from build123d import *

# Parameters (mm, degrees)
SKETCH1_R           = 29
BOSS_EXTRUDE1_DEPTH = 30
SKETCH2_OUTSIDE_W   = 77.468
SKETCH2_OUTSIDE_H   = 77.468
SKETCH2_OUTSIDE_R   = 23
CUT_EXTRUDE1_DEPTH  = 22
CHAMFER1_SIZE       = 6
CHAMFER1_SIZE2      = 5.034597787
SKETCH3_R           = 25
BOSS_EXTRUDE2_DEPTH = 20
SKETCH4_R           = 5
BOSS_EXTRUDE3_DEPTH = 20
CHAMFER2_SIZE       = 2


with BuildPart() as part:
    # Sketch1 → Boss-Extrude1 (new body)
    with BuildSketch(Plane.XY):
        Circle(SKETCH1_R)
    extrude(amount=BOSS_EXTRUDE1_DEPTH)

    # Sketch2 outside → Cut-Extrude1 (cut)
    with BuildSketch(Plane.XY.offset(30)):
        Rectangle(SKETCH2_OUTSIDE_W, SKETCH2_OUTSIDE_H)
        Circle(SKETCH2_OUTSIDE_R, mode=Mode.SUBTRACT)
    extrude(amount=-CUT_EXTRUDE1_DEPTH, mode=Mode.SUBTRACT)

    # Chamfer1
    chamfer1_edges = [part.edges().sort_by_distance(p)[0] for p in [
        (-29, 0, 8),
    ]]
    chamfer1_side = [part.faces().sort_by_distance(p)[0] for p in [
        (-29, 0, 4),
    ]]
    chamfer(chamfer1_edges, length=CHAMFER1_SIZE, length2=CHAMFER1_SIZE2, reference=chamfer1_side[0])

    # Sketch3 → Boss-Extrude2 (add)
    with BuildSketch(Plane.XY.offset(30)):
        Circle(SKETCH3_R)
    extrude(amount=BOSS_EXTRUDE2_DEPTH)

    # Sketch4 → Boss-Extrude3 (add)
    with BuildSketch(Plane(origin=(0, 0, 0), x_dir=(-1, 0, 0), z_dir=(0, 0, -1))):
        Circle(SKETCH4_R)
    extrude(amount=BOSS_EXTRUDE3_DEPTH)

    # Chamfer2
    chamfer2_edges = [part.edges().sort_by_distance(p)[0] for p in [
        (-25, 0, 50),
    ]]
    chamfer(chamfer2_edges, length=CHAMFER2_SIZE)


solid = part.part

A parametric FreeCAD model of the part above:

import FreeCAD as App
import Part
import Sketcher
Q = App.Units.Quantity


def edges_at(feature, points):
    """Names of the edges that pass closest to the given points."""
    edges = feature.Shape.Edges
    near = lambda p: min(range(len(edges)), key=lambda i: edges[i].distToShape(Part.Vertex(*p))[0])
    return sorted({f"Edge{near(p) + 1}" for p in points})

doc = App.newDocument("Part")
body = doc.addObject("PartDesign::Body", "Body")

# Sketch on XY plane
sketch1 = body.newObject("Sketcher::SketchObject", "Sketch")
sketch1.AttachmentSupport = (doc.getObject("XY_Plane"), [""])
sketch1.MapMode = "FlatFace"
sketch1.addGeometry(Part.Circle(App.Vector(0, 0, 0), App.Vector(0, 0, 1), 29), False)
sketch1.addConstraint([
    Sketcher.Constraint("Coincident", 0, 3, -1, 1),
    Sketcher.Constraint("Diameter", 0, Q("58 mm")),
])
pad1 = body.newObject("PartDesign::Pad", "Pad")
pad1.Profile = sketch1
pad1.Length = 30

# Sketch on XY plane
sketch2 = body.newObject("Sketcher::SketchObject", "Sketch001")
sketch2.AttachmentSupport = (doc.getObject("XY_Plane"), [""])
sketch2.MapMode = "FlatFace"
sketch2.AttachmentOffset = App.Placement(App.Vector(0, 0, 30), App.Rotation())
sketch2.addGeometry([
    Part.LineSegment(App.Vector(-39, 39, 0), App.Vector(-39, -39, 0)),  # 0
    Part.LineSegment(App.Vector(-39, -39, 0), App.Vector(39, -39, 0)),  # 1
    Part.LineSegment(App.Vector(39, -39, 0), App.Vector(39, 39, 0)),  # 2
    Part.LineSegment(App.Vector(39, 39, 0), App.Vector(-39, 39, 0)),  # 3
    Part.Circle(App.Vector(0, 0, 0), App.Vector(0, 0, 1), 23),  # 4
], False)
sketch2.addConstraint([
    Sketcher.Constraint("Coincident", 0, 2, 1, 1),
    Sketcher.Constraint("Coincident", 1, 2, 2, 1),
    Sketcher.Constraint("Coincident", 2, 2, 3, 1),
    Sketcher.Constraint("Coincident", 3, 2, 0, 1),
    Sketcher.Constraint("Vertical", 0),
    Sketcher.Constraint("Horizontal", 1),
    Sketcher.Constraint("Vertical", 2),
    Sketcher.Constraint("Horizontal", 3),
    Sketcher.Constraint("Coincident", 4, 3, -1, 1),
    Sketcher.Constraint("Symmetric", 0, 2, 2, 2, -1, 1),
    Sketcher.Constraint("Equal", 3, 0),
    Sketcher.Constraint("Diameter", 4, Q("46 mm")),
    Sketcher.Constraint("DistanceX", 1, 1, 1, 2, Q("77.468 mm")),
])
pocket1 = body.newObject("PartDesign::Pocket", "Pocket")
pocket1.Profile = sketch2
pocket1.Length = 22
doc.recompute()

chamfer = body.newObject("PartDesign::Chamfer", "Chamfer")
chamfer.Base = (pocket1, edges_at(pocket1, [(-29, 0, 8)]))
chamfer.ChamferType = "Two distances"
chamfer.Size = 6
chamfer.Size2 = 5.034598

# Sketch on XY plane
sketch3 = body.newObject("Sketcher::SketchObject", "Sketch002")
sketch3.AttachmentSupport = (doc.getObject("XY_Plane"), [""])
sketch3.MapMode = "FlatFace"
sketch3.AttachmentOffset = App.Placement(App.Vector(0, 0, 30), App.Rotation())
sketch3.addGeometry(Part.Circle(App.Vector(0, 0, 0), App.Vector(0, 0, 1), 25), False)
sketch3.addConstraint([
    Sketcher.Constraint("Coincident", 0, 3, -1, 1),
    Sketcher.Constraint("Diameter", 0, Q("50 mm")),
])
pad2 = body.newObject("PartDesign::Pad", "Pad001")
pad2.Profile = sketch3
pad2.Length = 20

# Sketch on XY plane
sketch4 = body.newObject("Sketcher::SketchObject", "Sketch003")
sketch4.AttachmentSupport = (doc.getObject("XY_Plane"), [""])
sketch4.MapMode = "FlatFace"
sketch4.addGeometry(Part.Circle(App.Vector(0, 0, 0), App.Vector(0, 0, 1), 5), False)
sketch4.addConstraint([
    Sketcher.Constraint("Coincident", 0, 3, -1, 1),
    Sketcher.Constraint("Diameter", 0, Q("10 mm")),
])
pad3 = body.newObject("PartDesign::Pad", "Pad002")
pad3.Profile = sketch4
pad3.Length = 20
pad3.Reversed = True
doc.recompute()

chamfer2 = body.newObject("PartDesign::Chamfer", "Chamfer001")
chamfer2.Base = (pad3, edges_at(pad3, [(-25, 0, 50)]))
chamfer2.Size = 2

doc.recompute()
